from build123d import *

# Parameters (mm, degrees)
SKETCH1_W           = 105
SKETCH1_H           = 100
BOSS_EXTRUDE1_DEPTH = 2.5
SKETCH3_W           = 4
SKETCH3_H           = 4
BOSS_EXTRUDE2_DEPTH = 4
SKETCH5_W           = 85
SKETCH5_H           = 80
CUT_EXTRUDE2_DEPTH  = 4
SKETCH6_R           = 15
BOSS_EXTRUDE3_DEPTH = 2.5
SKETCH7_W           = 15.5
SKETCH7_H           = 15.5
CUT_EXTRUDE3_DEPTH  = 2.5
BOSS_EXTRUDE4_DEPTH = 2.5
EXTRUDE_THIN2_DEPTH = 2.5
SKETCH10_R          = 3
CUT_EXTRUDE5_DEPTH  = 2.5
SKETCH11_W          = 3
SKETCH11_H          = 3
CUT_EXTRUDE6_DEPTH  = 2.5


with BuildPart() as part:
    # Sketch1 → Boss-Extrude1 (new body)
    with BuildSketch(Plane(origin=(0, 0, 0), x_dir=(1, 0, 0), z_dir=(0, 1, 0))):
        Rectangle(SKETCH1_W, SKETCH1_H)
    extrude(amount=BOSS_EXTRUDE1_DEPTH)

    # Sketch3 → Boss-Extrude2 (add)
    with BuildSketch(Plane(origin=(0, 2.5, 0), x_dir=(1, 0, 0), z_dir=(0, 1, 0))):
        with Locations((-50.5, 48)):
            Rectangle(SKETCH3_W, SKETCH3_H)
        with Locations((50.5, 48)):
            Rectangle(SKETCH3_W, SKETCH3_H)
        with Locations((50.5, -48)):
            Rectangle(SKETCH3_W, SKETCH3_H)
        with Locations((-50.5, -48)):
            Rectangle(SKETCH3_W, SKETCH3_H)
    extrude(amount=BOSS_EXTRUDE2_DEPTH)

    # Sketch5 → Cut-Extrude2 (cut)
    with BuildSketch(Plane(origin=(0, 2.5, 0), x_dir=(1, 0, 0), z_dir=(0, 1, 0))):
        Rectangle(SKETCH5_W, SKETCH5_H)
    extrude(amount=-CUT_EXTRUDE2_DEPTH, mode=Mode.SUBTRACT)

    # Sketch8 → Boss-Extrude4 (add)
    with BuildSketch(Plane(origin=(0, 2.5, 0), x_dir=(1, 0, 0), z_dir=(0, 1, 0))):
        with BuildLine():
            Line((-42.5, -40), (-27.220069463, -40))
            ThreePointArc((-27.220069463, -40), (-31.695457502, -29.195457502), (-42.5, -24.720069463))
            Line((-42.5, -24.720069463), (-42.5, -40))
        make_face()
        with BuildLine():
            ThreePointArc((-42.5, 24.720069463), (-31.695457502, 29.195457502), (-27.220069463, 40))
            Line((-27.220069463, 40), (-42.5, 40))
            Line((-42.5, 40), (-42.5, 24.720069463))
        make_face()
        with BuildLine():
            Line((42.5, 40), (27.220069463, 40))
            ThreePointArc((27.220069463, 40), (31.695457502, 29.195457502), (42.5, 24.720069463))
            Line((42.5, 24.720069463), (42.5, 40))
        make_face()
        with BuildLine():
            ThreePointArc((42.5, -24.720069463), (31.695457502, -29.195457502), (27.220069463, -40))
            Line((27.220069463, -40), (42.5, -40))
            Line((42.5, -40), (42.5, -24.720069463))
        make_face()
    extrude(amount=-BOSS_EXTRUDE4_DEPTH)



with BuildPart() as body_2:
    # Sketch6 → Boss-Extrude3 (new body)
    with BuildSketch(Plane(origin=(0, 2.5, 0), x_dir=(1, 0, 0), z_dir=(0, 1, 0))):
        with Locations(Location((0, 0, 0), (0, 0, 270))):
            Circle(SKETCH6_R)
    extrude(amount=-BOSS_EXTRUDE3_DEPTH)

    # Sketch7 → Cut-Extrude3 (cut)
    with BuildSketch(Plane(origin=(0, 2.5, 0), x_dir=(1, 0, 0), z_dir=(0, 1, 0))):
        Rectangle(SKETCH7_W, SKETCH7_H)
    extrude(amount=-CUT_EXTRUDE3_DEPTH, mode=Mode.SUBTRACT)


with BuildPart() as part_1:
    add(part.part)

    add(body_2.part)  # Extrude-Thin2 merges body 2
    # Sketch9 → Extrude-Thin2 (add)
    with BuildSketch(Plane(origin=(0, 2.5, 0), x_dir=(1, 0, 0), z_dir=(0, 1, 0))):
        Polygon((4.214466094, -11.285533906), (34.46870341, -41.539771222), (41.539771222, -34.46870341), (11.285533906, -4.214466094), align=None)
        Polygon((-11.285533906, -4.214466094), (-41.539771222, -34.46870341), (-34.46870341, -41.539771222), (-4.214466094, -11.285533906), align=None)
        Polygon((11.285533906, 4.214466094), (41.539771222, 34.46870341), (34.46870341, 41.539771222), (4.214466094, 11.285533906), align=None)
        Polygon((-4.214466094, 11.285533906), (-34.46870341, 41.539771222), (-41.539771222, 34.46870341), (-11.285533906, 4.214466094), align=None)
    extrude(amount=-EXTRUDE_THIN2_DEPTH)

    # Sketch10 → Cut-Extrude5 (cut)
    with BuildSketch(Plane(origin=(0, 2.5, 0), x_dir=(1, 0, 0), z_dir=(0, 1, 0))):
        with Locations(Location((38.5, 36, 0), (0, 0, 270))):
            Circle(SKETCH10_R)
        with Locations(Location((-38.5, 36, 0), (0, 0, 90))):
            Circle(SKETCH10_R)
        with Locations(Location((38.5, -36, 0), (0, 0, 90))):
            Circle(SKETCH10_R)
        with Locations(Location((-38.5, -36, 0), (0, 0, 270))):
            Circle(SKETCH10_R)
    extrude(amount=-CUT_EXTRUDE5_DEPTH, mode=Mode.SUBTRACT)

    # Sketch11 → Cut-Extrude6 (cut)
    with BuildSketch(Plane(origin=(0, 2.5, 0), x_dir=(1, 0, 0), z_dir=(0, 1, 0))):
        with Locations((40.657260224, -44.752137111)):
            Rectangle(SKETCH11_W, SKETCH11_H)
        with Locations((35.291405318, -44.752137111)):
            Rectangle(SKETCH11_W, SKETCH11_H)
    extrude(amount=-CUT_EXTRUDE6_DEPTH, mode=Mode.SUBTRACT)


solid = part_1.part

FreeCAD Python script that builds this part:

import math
import FreeCAD as App
import Part
import Sketcher
from FreeCAD import Vector
Q = App.Units.Quantity


def add_polygon(sketch, points):
    """Adds a closed chain of lines whose ends are joined by coincident constraints."""
    first, n = sketch.GeometryCount, len(points)
    for a, b in zip(points, points[1:] + points[:1]):
        sketch.addGeometry(Part.LineSegment(App.Vector(*a, 0), App.Vector(*b, 0)), False)
    for i in range(n):
        sketch.addConstraint(Sketcher.Constraint("Coincident", first + i, 2, first + (i + 1) % n, 1))

doc = App.newDocument("Part")
params = doc.addObject("Spreadsheet::Sheet", "Params")
for row, (alias, value) in enumerate([
    ("sketch1_width", "105 mm"),
    ("sketch1_height", "100 mm"),
    ("pad1_length", "2.5 mm"),
    ("sketch2_width", "4 mm"),
    ("pad2_length", "4 mm"),
    ("sketch3_width", "85 mm"),
    ("sketch3_height", "80 mm"),
    ("pocket1_length", "4 mm"),
    ("pad3_length", "2.5 mm"),
    ("sketch5_diameter", "30 mm"),
    ("pad4_length", "2.5 mm"),
    ("sketch6_width", "15.5 mm"),
    ("pocket2_length", "2.5 mm"),
    ("sketch7_length", "10 mm"),
    ("pad5_length", "2.5 mm"),
    ("sketch8_diameter", "6 mm"),
    ("pocket3_length", "2.5 mm"),
    ("sketch9_width", "3 mm"),
    ("pocket4_length", "2.5 mm"),
], start=1):
    params.set(f"A{row}", alias)
    params.set(f"B{row}", "=" + value)
    params.setAlias(f"B{row}", alias)

body = doc.addObject("PartDesign::Body", "Body")

sketch1 = body.newObject("Sketcher::SketchObject", "Sketch")
sketch1.AttachmentSupport = (doc.getObject("XZ_Plane"), [""])
sketch1.MapMode = "FlatFace"
add_polygon(sketch1, [(-52.5, -50), (-52.5, 50), (52.5, 50), (52.5, -50)])
sketch1.addConstraint([
    Sketcher.Constraint("Vertical", 0),
    Sketcher.Constraint("Horizontal", 1),
    Sketcher.Constraint("Vertical", 2),
    Sketcher.Constraint("Horizontal", 3),
    Sketcher.Constraint("Symmetric", 0, 2, 2, 2, -1, 1),
    Sketcher.Constraint("DistanceX", 1, 1, 1, 2, Q("105 mm")),
    Sketcher.Constraint("DistanceY", 0, 1, 0, 2, Q("100 mm")),
])
sketch1.setExpression("Constraints[9]", "Params.sketch1_width")
sketch1.setExpression("Constraints[10]", "Params.sketch1_height")
pad1 = body.newObject("PartDesign::Pad", "Pad")
pad1.Profile = sketch1
pad1.setExpression("Length", "Params.pad1_length")
pad1.Reversed = True

sketch2 = body.newObject("Sketcher::SketchObject", "Sketch001")
sketch2.AttachmentSupport = (doc.getObject("XZ_Plane"), [""])
sketch2.MapMode = "FlatFace"
sketch2.AttachmentOffset = App.Placement(Vector(0, 0, -2.5), App.Rotation())
add_polygon(sketch2, [(-52.5, -50), (-52.5, -46), (-48.5, -46), (-48.5, -50)])
add_polygon(sketch2, [(48.5, -50), (48.5, -46), (52.5, -46), (52.5, -50)])
add_polygon(sketch2, [(48.5, 46), (48.5, 50), (52.5, 50), (52.5, 46)])
add_polygon(sketch2, [(-52.5, 46), (-52.5, 50), (-48.5, 50), (-48.5, 46)])
sketch2.addConstraint([
    Sketcher.Constraint("Vertical", 0),
    Sketcher.Constraint("Horizontal", 1),
    Sketcher.Constraint("Vertical", 2),
    Sketcher.Constraint("Horizontal", 3),
    Sketcher.Constraint("Vertical", 4),
    Sketcher.Constraint("Horizontal", 5),
    Sketcher.Constraint("Vertical", 6),
    Sketcher.Constraint("Horizontal", 7),
    Sketcher.Constraint("Vertical", 8),
    Sketcher.Constraint("Horizontal", 9),
    Sketcher.Constraint("Vertical", 10),
    Sketcher.Constraint("Horizontal", 11),
    Sketcher.Constraint("Vertical", 12),
    Sketcher.Constraint("Horizontal", 13),
    Sketcher.Constraint("Vertical", 14),
    Sketcher.Constraint("Horizontal", 15),
    Sketcher.Constraint("Symmetric", 2, 2, 8, 2, -1, 1),
    Sketcher.Constraint("Symmetric", 0, 2, 10, 2, -1, 1),
    Sketcher.Constraint("Symmetric", 6, 2, 12, 2, -1, 1),
    Sketcher.Constraint("Symmetric", 4, 2, 14, 2, -1, 1),
    Sketcher.Constraint("Symmetric", 1, 2, 4, 2, -2),
    Sketcher.Constraint("Symmetric", 3, 2, 6, 2, -2),
    Sketcher.Constraint("Equal", 15, 0),
    Sketcher.Constraint("DistanceX", 1, 1, 1, 2, Q("4 mm")),
    Sketcher.Constraint("DistanceY", 0, 2, -1, 1, Q("46 mm")),
    Sketcher.Constraint("DistanceX", 1, 2, 4, 2, Q("97 mm")),
])
sketch2.setExpression("Constraints[39]", "Params.sketch2_width")
pad2 = body.newObject("PartDesign::Pad", "Pad001")
pad2.Profile = sketch2
pad2.setExpression("Length", "Params.pad2_length")
pad2.Reversed = True

sketch3 = body.newObject("Sketcher::SketchObject", "Sketch002")
sketch3.AttachmentSupport = (doc.getObject("XZ_Plane"), [""])
sketch3.MapMode = "FlatFace"
sketch3.AttachmentOffset = App.Placement(Vector(0, 0, -2.5), App.Rotation())
add_polygon(sketch3, [(-42.5, -40), (-42.5, 40), (42.5, 40), (42.5, -40)])
sketch3.addConstraint([
    Sketcher.Constraint("Vertical", 0),
    Sketcher.Constraint("Horizontal", 1),
    Sketcher.Constraint("Vertical", 2),
    Sketcher.Constraint("Horizontal", 3),
    Sketcher.Constraint("Symmetric", 0, 2, 2, 2, -1, 1),
    Sketcher.Constraint("DistanceX", 1, 1, 1, 2, Q("85 mm")),
    Sketcher.Constraint("DistanceY", 0, 1, 0, 2, Q("80 mm")),
])
sketch3.setExpression("Constraints[9]", "Params.sketch3_width")
sketch3.setExpression("Constraints[10]", "Params.sketch3_height")
pocket1 = body.newObject("PartDesign::Pocket", "Pocket")
pocket1.Profile = sketch3
pocket1.setExpression("Length", "Params.pocket1_length")
pocket1.Reversed = True

sketch4 = body.newObject("Sketcher::SketchObject", "Sketch003")
sketch4.AttachmentSupport = (doc.getObject("XZ_Plane"), [""])
sketch4.MapMode = "FlatFace"
sketch4.AttachmentOffset = App.Placement(Vector(0, 0, -2.5), App.Rotation())
sketch4.addGeometry([
    Part.LineSegment(Vector(-42.5, 40, 0), Vector(-27.220069, 40, 0)),
    Part.ArcOfCircle(Part.Circle(Vector(-42.5, 40, 0), Vector(0, 0, 1), 15.279931), math.radians(-90), math.radians(0)),
    Part.LineSegment(Vector(-42.5, 24.720069, 0), Vector(-42.5, 40, 0)),
    Part.ArcOfCircle(Part.Circle(Vector(-42.5, -40, 0), Vector(0, 0, 1), 15.279931), math.radians(0), math.radians(90)),
    Part.LineSegment(Vector(-27.220069, -40, 0), Vector(-42.5, -40, 0)),
    Part.LineSegment(Vector(-42.5, -40, 0), Vector(-42.5, -24.720069, 0)),
    Part.LineSegment(Vector(42.5, -40, 0), Vector(27.220069, -40, 0)),
    Part.ArcOfCircle(Part.Circle(Vector(42.5, -40, 0), Vector(0, 0, 1), 15.279931), math.radians(90), math.radians(180)),
    Part.LineSegment(Vector(42.5, -24.720069, 0), Vector(42.5, -40, 0)),
    Part.ArcOfCircle(Part.Circle(Vector(42.5, 40, 0), Vector(0, 0, 1), 15.279931), math.radians(-180), math.radians(-90)),
    Part.LineSegment(Vector(27.220069, 40, 0), Vector(42.5, 40, 0)),
    Part.LineSegment(Vector(42.5, 40, 0), Vector(42.5, 24.720069, 0)),
], False)
sketch4.addConstraint([
    Sketcher.Constraint("Coincident", 0, 2, 1, 2),
    Sketcher.Constraint("Coincident", 1, 1, 2, 1),
    Sketcher.Constraint("Coincident", 2, 2, 0, 1),
    Sketcher.Constraint("Coincident", 3, 1, 4, 1),
    Sketcher.Constraint("Coincident", 4, 2, 5, 1),
    Sketcher.Constraint("Coincident", 5, 2, 3, 2),
    Sketcher.Constraint("Coincident", 6, 2, 7, 2),
    Sketcher.Constraint("Coincident", 7, 1, 8, 1),
    Sketcher.Constraint("Coincident", 8, 2, 6, 1),
    Sketcher.Constraint("Coincident", 9, 1, 10, 1),
    Sketcher.Constraint("Coincident", 10, 2, 11, 1),
    Sketcher.Constraint("Coincident", 11, 2, 9, 2),
    Sketcher.Constraint("Horizontal", 0),
    Sketcher.Constraint("Vertical", 2),
    Sketcher.Constraint("Horizontal", 4),
    Sketcher.Constraint("Vertical", 5),
    Sketcher.Constraint("Horizontal", 6),
    Sketcher.Constraint("Vertical", 8),
    Sketcher.Constraint("Horizontal", 10),
    Sketcher.Constraint("Vertical", 11),
    Sketcher.Constraint("Coincident", 2, 2, 1, 3),
    Sketcher.Constraint("Coincident", 4, 2, 3, 3),
    Sketcher.Constraint("Coincident", 8, 2, 7, 3),
    Sketcher.Constraint("Coincident", 10, 2, 9, 3),
    Sketcher.Constraint("Equal", 1, 3),
    Sketcher.Constraint("Equal", 3, 7),
    Sketcher.Constraint("Equal", 7, 9),
    Sketcher.Constraint("Symmetric", 1, 3, 7, 3, -1, 1),
    Sketcher.Constraint("Symmetric", 3, 3, 9, 3, -1, 1),
    Sketcher.Constraint("Symmetric", 3, 3, 7, 3, -2),
    Sketcher.Constraint("DistanceY", -1, 1, 1, 3, Q("40 mm")),
    Sketcher.Constraint("DistanceX", 3, 3, 7, 3, Q("85 mm")),
    Sketcher.Constraint("Radius", 1, Q("15.279931 mm")),
])
pad3 = body.newObject("PartDesign::Pad", "Pad002")
pad3.Profile = sketch4
pad3.setExpression("Length", "Params.pad3_length")
body2 = doc.addObject("PartDesign::Body", "Body001")

sketch5 = body2.newObject("Sketcher::SketchObject", "Sketch004")
sketch5.AttachmentSupport = (doc.getObject("XZ_Plane001"), [""])
sketch5.MapMode = "FlatFace"
sketch5.AttachmentOffset = App.Placement(Vector(0, 0, -2.5), App.Rotation())
sketch5.addGeometry(Part.Circle(Vector(0, 0, 0), Vector(0, 0, 1), 15), False)
sketch5.addConstraint([
    Sketcher.Constraint("Coincident", 0, 3, -1, 1),
    Sketcher.Constraint("Diameter", 0, Q("30 mm")),
])
sketch5.setExpression("Constraints[1]", "Params.sketch5_diameter")
pad4 = body2.newObject("PartDesign::Pad", "Pad003")
pad4.Profile = sketch5
pad4.setExpression("Length", "Params.pad4_length")

sketch6 = body2.newObject("Sketcher::SketchObject", "Sketch005")
sketch6.AttachmentSupport = (doc.getObject("XZ_Plane001"), [""])
sketch6.MapMode = "FlatFace"
sketch6.AttachmentOffset = App.Placement(Vector(0, 0, -2.5), App.Rotation())
add_polygon(sketch6, [(-7.75, -7.75), (-7.75, 7.75), (7.75, 7.75), (7.75, -7.75)])
sketch6.addConstraint([
    Sketcher.Constraint("Vertical", 0),
    Sketcher.Constraint("Horizontal", 1),
    Sketcher.Constraint("Vertical", 2),
    Sketcher.Constraint("Horizontal", 3),
    Sketcher.Constraint("Symmetric", 0, 2, 2, 2, -1, 1),
    Sketcher.Constraint("Equal", 3, 0),
    Sketcher.Constraint("DistanceX", 1, 1, 1, 2, Q("15.5 mm")),
])
sketch6.setExpression("Constraints[10]", "Params.sketch6_width")
pocket2 = body2.newObject("PartDesign::Pocket", "Pocket001")
pocket2.Profile = sketch6
pocket2.setExpression("Length", "Params.pocket2_length")
pocket2.Reversed = True
body.AllowCompound = True
doc.recompute()

boolean = body.newObject("PartDesign::Boolean", "Boolean")
boolean.Type = "Fuse"
boolean.addObjects([body2])

sketch7 = body.newObject("Sketcher::SketchObject", "Sketch006")
sketch7.AttachmentSupport = (doc.getObject("XZ_Plane"), [""])
sketch7.MapMode = "FlatFace"
sketch7.AttachmentOffset = App.Placement(Vector(0, 0, -2.5), App.Rotation())
add_polygon(sketch7, [(4.214466, 11.285534), (34.468703, 41.539771), (41.539771, 34.468703), (11.285534, 4.214466)])
add_polygon(sketch7, [(-11.285534, 4.214466), (-41.539771, 34.468703), (-34.468703, 41.539771), (-4.214466, 11.285534)])
add_polygon(sketch7, [(11.285534, -4.214466), (41.539771, -34.468703), (34.468703, -41.539771), (4.214466, -11.285534)])
add_polygon(sketch7, [(-4.214466, -11.285534), (-34.468703, -41.539771), (-41.539771, -34.468703), (-11.285534, -4.214466)])
sketch7.addConstraint([
    Sketcher.Constraint("Symmetric", 4, 2, 8, 2, -1, 1),
    Sketcher.Constraint("Symmetric", 5, 2, 9, 2, -1, 1),
    Sketcher.Constraint("Symmetric", 6, 2, 10, 2, -1, 1),
    Sketcher.Constraint("Symmetric", 7, 2, 11, 2, -1, 1),
    Sketcher.Constraint("Symmetric", 0, 2, 12, 2, -1, 1),
    Sketcher.Constraint("Symmetric", 1, 2, 13, 2, -1, 1),
    Sketcher.Constraint("Symmetric", 2, 2, 14, 2, -1, 1),
    Sketcher.Constraint("Symmetric", 3, 2, 15, 2, -1, 1),
    Sketcher.Constraint("Symmetric", 1, 2, 4, 2, -2),
    Sketcher.Constraint("Symmetric", 0, 2, 5, 2, -2),
    Sketcher.Constraint("Symmetric", 3, 2, 6, 2, -2),
    Sketcher.Constraint("Symmetric", 2, 2, 7, 2, -2),
    Sketcher.Constraint("Perpendicular", 0, 1),
    Sketcher.Constraint("Perpendicular", 1, 2),
    Sketcher.Constraint("Perpendicular", 2, 3),
    Sketcher.Constraint("Parallel", 3, 4),
    Sketcher.Constraint("Distance", 1, Q("10 mm")),
    Sketcher.Constraint("DistanceX", 6, 2, 2, 2, Q("15.5 mm")),
    Sketcher.Constraint("DistanceY", 10, 2, 2, 2, Q("15.5 mm")),
    Sketcher.Constraint("DistanceY", -1, 1, 0, 2, Q("41.539771 mm")),
])
sketch7.setExpression("Constraints[32]", "Params.sketch7_length")
pad5 = body.newObject("PartDesign::Pad", "Pad004")
pad5.Profile = sketch7
pad5.setExpression("Length", "Params.pad5_length")

sketch8 = body.newObject("Sketcher::SketchObject", "Sketch007")
sketch8.AttachmentSupport = (doc.getObject("XZ_Plane"), [""])
sketch8.MapMode = "FlatFace"
sketch8.AttachmentOffset = App.Placement(Vector(0, 0, -2.5), App.Rotation())
sketch8.addGeometry([
    Part.Circle(Vector(38.5, -36, 0), Vector(0, 0, 1), 3),
    Part.Circle(Vector(-38.5, -36, 0), Vector(0, 0, 1), 3),
    Part.Circle(Vector(38.5, 36, 0), Vector(0, 0, 1), 3),
    Part.Circle(Vector(-38.5, 36, 0), Vector(0, 0, 1), 3),
], False)
sketch8.addConstraint([
    Sketcher.Constraint("Equal", 0, 1),
    Sketcher.Constraint("Equal", 1, 2),
    Sketcher.Constraint("Equal", 2, 3),
    Sketcher.Constraint("Symmetric", 1, 3, 2, 3, -1, 1),
    Sketcher.Constraint("Symmetric", 0, 3, 3, 3, -1, 1),
    Sketcher.Constraint("Symmetric", 0, 3, 1, 3, -2),
    Sketcher.Constraint("Diameter", 0, Q("6 mm")),
    Sketcher.Constraint("DistanceY", 0, 3, -1, 1, Q("36 mm")),
    Sketcher.Constraint("DistanceX", 1, 3, 0, 3, Q("77 mm")),
])
sketch8.setExpression("Constraints[6]", "Params.sketch8_diameter")
pocket3 = body.newObject("PartDesign::Pocket", "Pocket002")
pocket3.Profile = sketch8
pocket3.setExpression("Length", "Params.pocket3_length")
pocket3.Reversed = True

sketch9 = body.newObject("Sketcher::SketchObject", "Sketch008")
sketch9.AttachmentSupport = (doc.getObject("XZ_Plane"), [""])
sketch9.MapMode = "FlatFace"
sketch9.AttachmentOffset = App.Placement(Vector(0, 0, -2.5), App.Rotation())
add_polygon(sketch9, [(39.15726, 43.252137), (39.15726, 46.252137), (42.15726, 46.252137), (42.15726, 43.252137)])
add_polygon(sketch9, [(33.791405, 43.252137), (33.791405, 46.252137), (36.791405, 46.252137), (36.791405, 43.252137)])
sketch9.addConstraint([
    Sketcher.Constraint("Vertical", 0),
    Sketcher.Constraint("Horizontal", 1),
    Sketcher.Constraint("Vertical", 2),
    Sketcher.Constraint("Horizontal", 3),
    Sketcher.Constraint("Vertical", 4),
    Sketcher.Constraint("Horizontal", 5),
    Sketcher.Constraint("Vertical", 6),
    Sketcher.Constraint("Horizontal", 7),
    Sketcher.Constraint("Horizontal", 1, 2, 4, 2),
    Sketcher.Constraint("Horizontal", 3, 2, 6, 2),
    Sketcher.Constraint("Equal", 3, 5),
    Sketcher.Constraint("Equal", 7, 0),
    Sketcher.Constraint("DistanceX", 1, 1, 1, 2, Q("3 mm")),
    Sketcher.Constraint("DistanceX", -1, 1, 0, 2, Q("39.15726 mm")),
    Sketcher.Constraint("DistanceY", -1, 1, 0, 2, Q("46.252137 mm")),
    Sketcher.Constraint("DistanceX", -1, 1, 4, 2, Q("33.791405 mm")),
])
sketch9.setExpression("Constraints[20]", "Params.sketch9_width")
pocket4 = body.newObject("PartDesign::Pocket", "Pocket003")
pocket4.Profile = sketch9
pocket4.setExpression("Length", "Params.pocket4_length")
pocket4.Reversed = True

doc.recompute()
